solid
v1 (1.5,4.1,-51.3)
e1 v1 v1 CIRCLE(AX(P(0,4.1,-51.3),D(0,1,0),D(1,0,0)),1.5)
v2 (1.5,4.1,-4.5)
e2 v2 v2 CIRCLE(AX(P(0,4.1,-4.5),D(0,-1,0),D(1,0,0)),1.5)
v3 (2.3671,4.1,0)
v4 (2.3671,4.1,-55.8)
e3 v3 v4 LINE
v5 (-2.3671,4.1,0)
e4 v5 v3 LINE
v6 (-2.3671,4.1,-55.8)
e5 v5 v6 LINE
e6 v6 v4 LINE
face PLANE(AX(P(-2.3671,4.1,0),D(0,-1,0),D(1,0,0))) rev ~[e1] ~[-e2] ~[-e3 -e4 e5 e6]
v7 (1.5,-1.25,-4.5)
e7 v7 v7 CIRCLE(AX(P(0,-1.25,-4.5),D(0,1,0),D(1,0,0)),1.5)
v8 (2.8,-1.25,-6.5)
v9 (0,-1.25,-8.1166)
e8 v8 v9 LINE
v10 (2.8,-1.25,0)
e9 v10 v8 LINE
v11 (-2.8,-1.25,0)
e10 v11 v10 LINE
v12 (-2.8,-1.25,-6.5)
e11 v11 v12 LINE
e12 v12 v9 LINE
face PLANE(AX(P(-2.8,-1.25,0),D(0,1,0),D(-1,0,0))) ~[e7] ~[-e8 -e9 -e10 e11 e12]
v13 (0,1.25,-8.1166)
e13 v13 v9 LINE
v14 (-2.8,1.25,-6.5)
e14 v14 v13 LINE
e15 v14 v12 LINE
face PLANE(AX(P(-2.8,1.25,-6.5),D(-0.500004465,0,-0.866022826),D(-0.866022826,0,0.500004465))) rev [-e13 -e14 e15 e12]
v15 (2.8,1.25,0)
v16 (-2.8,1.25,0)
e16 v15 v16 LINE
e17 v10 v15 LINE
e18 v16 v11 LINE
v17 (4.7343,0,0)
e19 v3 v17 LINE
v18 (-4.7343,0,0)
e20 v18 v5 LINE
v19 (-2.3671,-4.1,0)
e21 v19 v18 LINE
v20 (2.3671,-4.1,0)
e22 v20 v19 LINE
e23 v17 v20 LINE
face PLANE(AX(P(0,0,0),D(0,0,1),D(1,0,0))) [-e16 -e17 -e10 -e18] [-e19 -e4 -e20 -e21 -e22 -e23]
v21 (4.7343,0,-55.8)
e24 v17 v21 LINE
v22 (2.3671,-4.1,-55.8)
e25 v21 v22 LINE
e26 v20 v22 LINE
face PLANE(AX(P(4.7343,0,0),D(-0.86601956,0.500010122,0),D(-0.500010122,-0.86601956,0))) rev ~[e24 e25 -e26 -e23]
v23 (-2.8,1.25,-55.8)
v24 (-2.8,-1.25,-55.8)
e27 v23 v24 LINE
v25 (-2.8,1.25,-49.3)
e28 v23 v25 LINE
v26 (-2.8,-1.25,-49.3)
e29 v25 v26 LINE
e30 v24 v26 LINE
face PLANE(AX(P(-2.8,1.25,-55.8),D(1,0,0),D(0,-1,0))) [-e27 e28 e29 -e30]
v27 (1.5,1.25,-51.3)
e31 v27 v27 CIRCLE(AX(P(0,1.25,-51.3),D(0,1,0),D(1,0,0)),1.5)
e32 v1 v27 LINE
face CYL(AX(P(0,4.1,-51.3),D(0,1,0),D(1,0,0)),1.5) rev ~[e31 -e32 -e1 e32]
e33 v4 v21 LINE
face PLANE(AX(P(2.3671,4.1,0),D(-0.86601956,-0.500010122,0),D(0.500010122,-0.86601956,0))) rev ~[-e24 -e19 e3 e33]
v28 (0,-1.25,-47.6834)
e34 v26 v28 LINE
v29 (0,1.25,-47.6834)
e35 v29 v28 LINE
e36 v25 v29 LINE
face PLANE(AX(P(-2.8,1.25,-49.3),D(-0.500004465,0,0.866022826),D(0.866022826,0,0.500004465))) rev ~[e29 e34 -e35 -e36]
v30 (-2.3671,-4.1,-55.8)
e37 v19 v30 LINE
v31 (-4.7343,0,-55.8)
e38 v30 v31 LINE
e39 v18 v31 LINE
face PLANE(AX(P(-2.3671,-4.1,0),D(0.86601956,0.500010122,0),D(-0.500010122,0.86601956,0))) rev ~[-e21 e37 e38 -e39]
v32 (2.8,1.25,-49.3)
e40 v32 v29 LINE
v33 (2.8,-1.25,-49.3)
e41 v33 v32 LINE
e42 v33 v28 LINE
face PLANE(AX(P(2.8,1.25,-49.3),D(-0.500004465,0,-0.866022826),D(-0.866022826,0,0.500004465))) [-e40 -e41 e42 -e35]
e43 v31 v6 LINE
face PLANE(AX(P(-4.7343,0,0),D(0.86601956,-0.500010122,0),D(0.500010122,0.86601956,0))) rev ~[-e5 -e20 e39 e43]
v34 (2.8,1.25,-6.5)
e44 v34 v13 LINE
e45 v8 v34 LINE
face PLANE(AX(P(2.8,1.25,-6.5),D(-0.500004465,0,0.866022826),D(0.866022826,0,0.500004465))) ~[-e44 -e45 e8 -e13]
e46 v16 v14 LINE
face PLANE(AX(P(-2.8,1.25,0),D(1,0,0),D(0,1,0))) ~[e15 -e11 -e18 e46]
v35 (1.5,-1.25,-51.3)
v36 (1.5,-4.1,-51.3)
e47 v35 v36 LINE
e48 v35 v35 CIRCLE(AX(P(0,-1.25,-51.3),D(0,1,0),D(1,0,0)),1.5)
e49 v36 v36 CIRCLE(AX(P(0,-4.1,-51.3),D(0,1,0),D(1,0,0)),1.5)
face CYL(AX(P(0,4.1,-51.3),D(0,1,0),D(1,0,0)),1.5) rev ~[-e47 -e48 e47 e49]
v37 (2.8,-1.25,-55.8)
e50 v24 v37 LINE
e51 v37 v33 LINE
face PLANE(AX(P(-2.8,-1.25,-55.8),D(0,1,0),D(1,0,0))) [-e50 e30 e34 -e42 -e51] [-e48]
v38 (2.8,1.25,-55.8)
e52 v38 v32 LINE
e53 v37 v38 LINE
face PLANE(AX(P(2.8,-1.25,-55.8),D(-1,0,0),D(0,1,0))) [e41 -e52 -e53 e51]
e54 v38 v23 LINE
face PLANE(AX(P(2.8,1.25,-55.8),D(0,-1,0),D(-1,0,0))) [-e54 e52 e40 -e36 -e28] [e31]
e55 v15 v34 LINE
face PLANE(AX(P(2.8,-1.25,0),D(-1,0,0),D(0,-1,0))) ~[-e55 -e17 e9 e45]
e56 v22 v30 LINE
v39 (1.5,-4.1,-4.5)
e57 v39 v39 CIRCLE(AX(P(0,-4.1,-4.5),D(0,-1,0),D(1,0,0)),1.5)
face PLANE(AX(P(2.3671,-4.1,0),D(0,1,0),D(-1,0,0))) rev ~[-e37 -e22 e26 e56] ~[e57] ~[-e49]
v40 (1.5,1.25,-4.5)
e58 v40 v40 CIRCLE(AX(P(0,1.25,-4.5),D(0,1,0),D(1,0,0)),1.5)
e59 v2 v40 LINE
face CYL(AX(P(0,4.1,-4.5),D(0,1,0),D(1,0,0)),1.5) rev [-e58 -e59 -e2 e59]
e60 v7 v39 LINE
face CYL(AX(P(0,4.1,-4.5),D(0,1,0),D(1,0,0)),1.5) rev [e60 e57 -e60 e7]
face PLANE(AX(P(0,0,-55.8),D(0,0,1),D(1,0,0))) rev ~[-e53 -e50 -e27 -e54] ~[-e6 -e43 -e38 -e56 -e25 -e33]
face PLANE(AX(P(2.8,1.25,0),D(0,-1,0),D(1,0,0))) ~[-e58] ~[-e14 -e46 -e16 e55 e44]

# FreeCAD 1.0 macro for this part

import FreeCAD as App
import Part
import Sketcher
from FreeCAD import Vector
Q = App.Units.Quantity

doc = App.newDocument("Part")
params = doc.addObject("Spreadsheet::Sheet", "Params")
for row, (alias, value) in enumerate([
    ("pad1_length", "55.8 mm"),
    ("sketch2_width", "5.6 mm"),
    ("sketch2_height", "2.5 mm"),
    ("pocket1_length", "6.5 mm"),
    ("sketch3_diameter", "3 mm"),
    ("pocket2_length", "8.2 mm"),
    ("sketch4_width", "5.6 mm"),
    ("pocket3_length", "2.5 mm"),
], start=1):
    params.set(f"A{row}", alias)
    params.set(f"B{row}", "=" + value)
    params.setAlias(f"B{row}", alias)

body = doc.addObject("PartDesign::Body", "Body")

# Sketch on XY plane
sketch1 = doc.addObject("Sketcher::SketchObject", "Sketch")
body.addObject(sketch1)
sketch1.AttachmentSupport = (doc.XY_Plane, [""])
sketch1.MapMode = "FlatFace"
sketch1.addGeometry([
    Part.LineSegment(Vector(-4.7343, 0, 0), Vector(-2.3671, -4.1, 0)),  # 0
    Part.LineSegment(Vector(-2.3671, -4.1, 0), Vector(2.3671, -4.1, 0)),  # 1
    Part.LineSegment(Vector(2.3671, -4.1, 0), Vector(4.7343, 0, 0)),  # 2
    Part.LineSegment(Vector(4.7343, 0, 0), Vector(2.3671, 4.1, 0)),  # 3
    Part.LineSegment(Vector(2.3671, 4.1, 0), Vector(-2.3671, 4.1, 0)),  # 4
    Part.LineSegment(Vector(-2.3671, 4.1, 0), Vector(-4.7343, 0, 0)),  # 5
], False)
sketch1.addConstraint([
    Sketcher.Constraint("Coincident", 0, 2, 1, 1),
    Sketcher.Constraint("Coincident", 1, 2, 2, 1),
    Sketcher.Constraint("Coincident", 2, 2, 3, 1),
    Sketcher.Constraint("Coincident", 3, 2, 4, 1),
    Sketcher.Constraint("Coincident", 4, 2, 5, 1),
    Sketcher.Constraint("Coincident", 5, 2, 0, 1),
    Sketcher.Constraint("Horizontal", 1),
    Sketcher.Constraint("Horizontal", 4),
    Sketcher.Constraint("Symmetric", 0, 2, 3, 2, -1, 1),
    Sketcher.Constraint("Symmetric", 2, 2, 5, 2, -1, 1),
    Sketcher.Constraint("PointOnObject", 2, 2, -1),
    Sketcher.Constraint("Parallel", 2, 5),
    Sketcher.Constraint("Vertical", 1, 2, 3, 2),
    Sketcher.Constraint("DistanceY", 0, 2, -1, 1, 4.1),
    Sketcher.Constraint("Angle", 0, Q("-59.9993 deg")),
    Sketcher.Constraint("DistanceX", 1, 1, 1, 2, 4.7342),
])
pad1 = doc.addObject("PartDesign::Pad", "Pad")
body.addObject(pad1)
pad1.Profile = sketch1
pad1.setExpression("Length", "Params.pad1_length")
pad1.Reversed = True

# Sketch on XY plane
sketch2 = doc.addObject("Sketcher::SketchObject", "Sketch001")
body.addObject(sketch2)
sketch2.AttachmentSupport = (doc.XY_Plane, [""])
sketch2.MapMode = "FlatFace"
sketch2.AttachmentOffset = App.Placement(Vector(0, 0, -55.8), App.Rotation())
sketch2.addGeometry([
    Part.LineSegment(Vector(-2.8, 1.25, 0), Vector(2.8, 1.25, 0)),
    Part.LineSegment(Vector(2.8, 1.25, 0), Vector(2.8, -1.25, 0)),
    Part.LineSegment(Vector(2.8, -1.25, 0), Vector(-2.8, -1.25, 0)),
    Part.LineSegment(Vector(-2.8, -1.25, 0), Vector(-2.8, 1.25, 0)),
], False)
sketch2.addConstraint([
    Sketcher.Constraint("Coincident", 0, 2, 1, 1),
    Sketcher.Constraint("Coincident", 1, 2, 2, 1),
    Sketcher.Constraint("Coincident", 2, 2, 3, 1),
    Sketcher.Constraint("Coincident", 3, 2, 0, 1),
    Sketcher.Constraint("Horizontal", 0),
    Sketcher.Constraint("Vertical", 1),
    Sketcher.Constraint("Horizontal", 2),
    Sketcher.Constraint("Vertical", 3),
    Sketcher.Constraint("Symmetric", 0, 2, 2, 2, -1, 1),
    Sketcher.Constraint("DistanceX", 0, 1, 0, 2, 5.6),
    Sketcher.Constraint("DistanceY", 1, 2, 1, 1, 2.5),
])
sketch2.setExpression("Constraints[9]", "Params.sketch2_width")
sketch2.setExpression("Constraints[10]", "Params.sketch2_height")
pocket1 = doc.addObject("PartDesign::Pocket", "Pocket")
body.addObject(pocket1)
pocket1.Profile = sketch2
pocket1.setExpression("Length", "Params.pocket1_length")
pocket1.Reversed = True

# Sketch on XZ plane
sketch3 = doc.addObject("Sketcher::SketchObject", "Sketch002")
body.addObject(sketch3)
sketch3.AttachmentSupport = (doc.XZ_Plane, [""])
sketch3.MapMode = "FlatFace"
sketch3.AttachmentOffset = App.Placement(Vector(0, 0, -4.1), App.Rotation())
sketch3.addGeometry(Part.Circle(Vector(0, -51.3, 0), Vector(0, 0, 1), 1.5), False)
sketch3.addConstraint([
    Sketcher.Constraint("PointOnObject", 0, 3, -2),
    Sketcher.Constraint("Diameter", 0, 3.0),
    Sketcher.Constraint("DistanceY", 0, 3, -1, 1, 51.3),
])
sketch3.setExpression("Constraints[1]", "Params.sketch3_diameter")
pocket2 = doc.addObject("PartDesign::Pocket", "Pocket001")
body.addObject(pocket2)
pocket2.Profile = sketch3
pocket2.setExpression("Length", "Params.pocket2_length")
pocket2.Reversed = True

# Sketch on XZ plane
sketch4 = doc.addObject("Sketcher::SketchObject", "Sketch003")
body.addObject(sketch4)
sketch4.AttachmentSupport = (doc.XZ_Plane, [""])
sketch4.MapMode = "FlatFace"
sketch4.AttachmentOffset = App.Placement(Vector(0, 0, -1.25), App.Rotation())
sketch4.addGeometry([
    Part.LineSegment(Vector(-2.8, -49.3, 0), Vector(2.8, -49.3, 0)),
    Part.LineSegment(Vector(2.8, -49.3, 0), Vector(0, -47.6834, 0)),
    Part.LineSegment(Vector(0, -47.6834, 0), Vector(-2.8, -49.3, 0)),
], False)
sketch4.addConstraint([
    Sketcher.Constraint("Coincident", 0, 2, 1, 1),
    Sketcher.Constraint("Coincident", 1, 2, 2, 1),
    Sketcher.Constraint("Coincident", 2, 2, 0, 1),
    Sketcher.Constraint("Horizontal", 0),
    Sketcher.Constraint("PointOnObject", 1, 2, -2),
    Sketcher.Constraint("Equal", 1, 2),
    Sketcher.Constraint("Angle", 1, Q("149.9997 deg")),
    Sketcher.Constraint("DistanceX", 0, 1, 0, 2, 5.6),
    Sketcher.Constraint("DistanceY", 0, 2, -1, 1, 49.3),
])
sketch4.setExpression("Constraints[7]", "Params.sketch4_width")
pocket3 = doc.addObject("PartDesign::Pocket", "Pocket002")
body.addObject(pocket3)
pocket3.Profile = sketch4
pocket3.setExpression("Length", "Params.pocket3_length")
pocket3.Reversed = True
doc.recompute()

datumplane = doc.addObject("PartDesign::Plane", "DatumPlane")
body.addObject(datumplane)
datumplane.AttachmentSupport = (doc.XY_Plane, [""])
datumplane.MapMode = "FlatFace"
datumplane.AttachmentOffset = App.Placement(Vector(0, 0, -27.9), App.Rotation())
mirrored = doc.addObject("PartDesign::Mirrored", "Mirrored")
body.addObject(mirrored)
mirrored.Originals = [pocket1, pocket2, pocket3]
mirrored.MirrorPlane = (datumplane, [""])
body.Tip = mirrored

doc.recompute()
